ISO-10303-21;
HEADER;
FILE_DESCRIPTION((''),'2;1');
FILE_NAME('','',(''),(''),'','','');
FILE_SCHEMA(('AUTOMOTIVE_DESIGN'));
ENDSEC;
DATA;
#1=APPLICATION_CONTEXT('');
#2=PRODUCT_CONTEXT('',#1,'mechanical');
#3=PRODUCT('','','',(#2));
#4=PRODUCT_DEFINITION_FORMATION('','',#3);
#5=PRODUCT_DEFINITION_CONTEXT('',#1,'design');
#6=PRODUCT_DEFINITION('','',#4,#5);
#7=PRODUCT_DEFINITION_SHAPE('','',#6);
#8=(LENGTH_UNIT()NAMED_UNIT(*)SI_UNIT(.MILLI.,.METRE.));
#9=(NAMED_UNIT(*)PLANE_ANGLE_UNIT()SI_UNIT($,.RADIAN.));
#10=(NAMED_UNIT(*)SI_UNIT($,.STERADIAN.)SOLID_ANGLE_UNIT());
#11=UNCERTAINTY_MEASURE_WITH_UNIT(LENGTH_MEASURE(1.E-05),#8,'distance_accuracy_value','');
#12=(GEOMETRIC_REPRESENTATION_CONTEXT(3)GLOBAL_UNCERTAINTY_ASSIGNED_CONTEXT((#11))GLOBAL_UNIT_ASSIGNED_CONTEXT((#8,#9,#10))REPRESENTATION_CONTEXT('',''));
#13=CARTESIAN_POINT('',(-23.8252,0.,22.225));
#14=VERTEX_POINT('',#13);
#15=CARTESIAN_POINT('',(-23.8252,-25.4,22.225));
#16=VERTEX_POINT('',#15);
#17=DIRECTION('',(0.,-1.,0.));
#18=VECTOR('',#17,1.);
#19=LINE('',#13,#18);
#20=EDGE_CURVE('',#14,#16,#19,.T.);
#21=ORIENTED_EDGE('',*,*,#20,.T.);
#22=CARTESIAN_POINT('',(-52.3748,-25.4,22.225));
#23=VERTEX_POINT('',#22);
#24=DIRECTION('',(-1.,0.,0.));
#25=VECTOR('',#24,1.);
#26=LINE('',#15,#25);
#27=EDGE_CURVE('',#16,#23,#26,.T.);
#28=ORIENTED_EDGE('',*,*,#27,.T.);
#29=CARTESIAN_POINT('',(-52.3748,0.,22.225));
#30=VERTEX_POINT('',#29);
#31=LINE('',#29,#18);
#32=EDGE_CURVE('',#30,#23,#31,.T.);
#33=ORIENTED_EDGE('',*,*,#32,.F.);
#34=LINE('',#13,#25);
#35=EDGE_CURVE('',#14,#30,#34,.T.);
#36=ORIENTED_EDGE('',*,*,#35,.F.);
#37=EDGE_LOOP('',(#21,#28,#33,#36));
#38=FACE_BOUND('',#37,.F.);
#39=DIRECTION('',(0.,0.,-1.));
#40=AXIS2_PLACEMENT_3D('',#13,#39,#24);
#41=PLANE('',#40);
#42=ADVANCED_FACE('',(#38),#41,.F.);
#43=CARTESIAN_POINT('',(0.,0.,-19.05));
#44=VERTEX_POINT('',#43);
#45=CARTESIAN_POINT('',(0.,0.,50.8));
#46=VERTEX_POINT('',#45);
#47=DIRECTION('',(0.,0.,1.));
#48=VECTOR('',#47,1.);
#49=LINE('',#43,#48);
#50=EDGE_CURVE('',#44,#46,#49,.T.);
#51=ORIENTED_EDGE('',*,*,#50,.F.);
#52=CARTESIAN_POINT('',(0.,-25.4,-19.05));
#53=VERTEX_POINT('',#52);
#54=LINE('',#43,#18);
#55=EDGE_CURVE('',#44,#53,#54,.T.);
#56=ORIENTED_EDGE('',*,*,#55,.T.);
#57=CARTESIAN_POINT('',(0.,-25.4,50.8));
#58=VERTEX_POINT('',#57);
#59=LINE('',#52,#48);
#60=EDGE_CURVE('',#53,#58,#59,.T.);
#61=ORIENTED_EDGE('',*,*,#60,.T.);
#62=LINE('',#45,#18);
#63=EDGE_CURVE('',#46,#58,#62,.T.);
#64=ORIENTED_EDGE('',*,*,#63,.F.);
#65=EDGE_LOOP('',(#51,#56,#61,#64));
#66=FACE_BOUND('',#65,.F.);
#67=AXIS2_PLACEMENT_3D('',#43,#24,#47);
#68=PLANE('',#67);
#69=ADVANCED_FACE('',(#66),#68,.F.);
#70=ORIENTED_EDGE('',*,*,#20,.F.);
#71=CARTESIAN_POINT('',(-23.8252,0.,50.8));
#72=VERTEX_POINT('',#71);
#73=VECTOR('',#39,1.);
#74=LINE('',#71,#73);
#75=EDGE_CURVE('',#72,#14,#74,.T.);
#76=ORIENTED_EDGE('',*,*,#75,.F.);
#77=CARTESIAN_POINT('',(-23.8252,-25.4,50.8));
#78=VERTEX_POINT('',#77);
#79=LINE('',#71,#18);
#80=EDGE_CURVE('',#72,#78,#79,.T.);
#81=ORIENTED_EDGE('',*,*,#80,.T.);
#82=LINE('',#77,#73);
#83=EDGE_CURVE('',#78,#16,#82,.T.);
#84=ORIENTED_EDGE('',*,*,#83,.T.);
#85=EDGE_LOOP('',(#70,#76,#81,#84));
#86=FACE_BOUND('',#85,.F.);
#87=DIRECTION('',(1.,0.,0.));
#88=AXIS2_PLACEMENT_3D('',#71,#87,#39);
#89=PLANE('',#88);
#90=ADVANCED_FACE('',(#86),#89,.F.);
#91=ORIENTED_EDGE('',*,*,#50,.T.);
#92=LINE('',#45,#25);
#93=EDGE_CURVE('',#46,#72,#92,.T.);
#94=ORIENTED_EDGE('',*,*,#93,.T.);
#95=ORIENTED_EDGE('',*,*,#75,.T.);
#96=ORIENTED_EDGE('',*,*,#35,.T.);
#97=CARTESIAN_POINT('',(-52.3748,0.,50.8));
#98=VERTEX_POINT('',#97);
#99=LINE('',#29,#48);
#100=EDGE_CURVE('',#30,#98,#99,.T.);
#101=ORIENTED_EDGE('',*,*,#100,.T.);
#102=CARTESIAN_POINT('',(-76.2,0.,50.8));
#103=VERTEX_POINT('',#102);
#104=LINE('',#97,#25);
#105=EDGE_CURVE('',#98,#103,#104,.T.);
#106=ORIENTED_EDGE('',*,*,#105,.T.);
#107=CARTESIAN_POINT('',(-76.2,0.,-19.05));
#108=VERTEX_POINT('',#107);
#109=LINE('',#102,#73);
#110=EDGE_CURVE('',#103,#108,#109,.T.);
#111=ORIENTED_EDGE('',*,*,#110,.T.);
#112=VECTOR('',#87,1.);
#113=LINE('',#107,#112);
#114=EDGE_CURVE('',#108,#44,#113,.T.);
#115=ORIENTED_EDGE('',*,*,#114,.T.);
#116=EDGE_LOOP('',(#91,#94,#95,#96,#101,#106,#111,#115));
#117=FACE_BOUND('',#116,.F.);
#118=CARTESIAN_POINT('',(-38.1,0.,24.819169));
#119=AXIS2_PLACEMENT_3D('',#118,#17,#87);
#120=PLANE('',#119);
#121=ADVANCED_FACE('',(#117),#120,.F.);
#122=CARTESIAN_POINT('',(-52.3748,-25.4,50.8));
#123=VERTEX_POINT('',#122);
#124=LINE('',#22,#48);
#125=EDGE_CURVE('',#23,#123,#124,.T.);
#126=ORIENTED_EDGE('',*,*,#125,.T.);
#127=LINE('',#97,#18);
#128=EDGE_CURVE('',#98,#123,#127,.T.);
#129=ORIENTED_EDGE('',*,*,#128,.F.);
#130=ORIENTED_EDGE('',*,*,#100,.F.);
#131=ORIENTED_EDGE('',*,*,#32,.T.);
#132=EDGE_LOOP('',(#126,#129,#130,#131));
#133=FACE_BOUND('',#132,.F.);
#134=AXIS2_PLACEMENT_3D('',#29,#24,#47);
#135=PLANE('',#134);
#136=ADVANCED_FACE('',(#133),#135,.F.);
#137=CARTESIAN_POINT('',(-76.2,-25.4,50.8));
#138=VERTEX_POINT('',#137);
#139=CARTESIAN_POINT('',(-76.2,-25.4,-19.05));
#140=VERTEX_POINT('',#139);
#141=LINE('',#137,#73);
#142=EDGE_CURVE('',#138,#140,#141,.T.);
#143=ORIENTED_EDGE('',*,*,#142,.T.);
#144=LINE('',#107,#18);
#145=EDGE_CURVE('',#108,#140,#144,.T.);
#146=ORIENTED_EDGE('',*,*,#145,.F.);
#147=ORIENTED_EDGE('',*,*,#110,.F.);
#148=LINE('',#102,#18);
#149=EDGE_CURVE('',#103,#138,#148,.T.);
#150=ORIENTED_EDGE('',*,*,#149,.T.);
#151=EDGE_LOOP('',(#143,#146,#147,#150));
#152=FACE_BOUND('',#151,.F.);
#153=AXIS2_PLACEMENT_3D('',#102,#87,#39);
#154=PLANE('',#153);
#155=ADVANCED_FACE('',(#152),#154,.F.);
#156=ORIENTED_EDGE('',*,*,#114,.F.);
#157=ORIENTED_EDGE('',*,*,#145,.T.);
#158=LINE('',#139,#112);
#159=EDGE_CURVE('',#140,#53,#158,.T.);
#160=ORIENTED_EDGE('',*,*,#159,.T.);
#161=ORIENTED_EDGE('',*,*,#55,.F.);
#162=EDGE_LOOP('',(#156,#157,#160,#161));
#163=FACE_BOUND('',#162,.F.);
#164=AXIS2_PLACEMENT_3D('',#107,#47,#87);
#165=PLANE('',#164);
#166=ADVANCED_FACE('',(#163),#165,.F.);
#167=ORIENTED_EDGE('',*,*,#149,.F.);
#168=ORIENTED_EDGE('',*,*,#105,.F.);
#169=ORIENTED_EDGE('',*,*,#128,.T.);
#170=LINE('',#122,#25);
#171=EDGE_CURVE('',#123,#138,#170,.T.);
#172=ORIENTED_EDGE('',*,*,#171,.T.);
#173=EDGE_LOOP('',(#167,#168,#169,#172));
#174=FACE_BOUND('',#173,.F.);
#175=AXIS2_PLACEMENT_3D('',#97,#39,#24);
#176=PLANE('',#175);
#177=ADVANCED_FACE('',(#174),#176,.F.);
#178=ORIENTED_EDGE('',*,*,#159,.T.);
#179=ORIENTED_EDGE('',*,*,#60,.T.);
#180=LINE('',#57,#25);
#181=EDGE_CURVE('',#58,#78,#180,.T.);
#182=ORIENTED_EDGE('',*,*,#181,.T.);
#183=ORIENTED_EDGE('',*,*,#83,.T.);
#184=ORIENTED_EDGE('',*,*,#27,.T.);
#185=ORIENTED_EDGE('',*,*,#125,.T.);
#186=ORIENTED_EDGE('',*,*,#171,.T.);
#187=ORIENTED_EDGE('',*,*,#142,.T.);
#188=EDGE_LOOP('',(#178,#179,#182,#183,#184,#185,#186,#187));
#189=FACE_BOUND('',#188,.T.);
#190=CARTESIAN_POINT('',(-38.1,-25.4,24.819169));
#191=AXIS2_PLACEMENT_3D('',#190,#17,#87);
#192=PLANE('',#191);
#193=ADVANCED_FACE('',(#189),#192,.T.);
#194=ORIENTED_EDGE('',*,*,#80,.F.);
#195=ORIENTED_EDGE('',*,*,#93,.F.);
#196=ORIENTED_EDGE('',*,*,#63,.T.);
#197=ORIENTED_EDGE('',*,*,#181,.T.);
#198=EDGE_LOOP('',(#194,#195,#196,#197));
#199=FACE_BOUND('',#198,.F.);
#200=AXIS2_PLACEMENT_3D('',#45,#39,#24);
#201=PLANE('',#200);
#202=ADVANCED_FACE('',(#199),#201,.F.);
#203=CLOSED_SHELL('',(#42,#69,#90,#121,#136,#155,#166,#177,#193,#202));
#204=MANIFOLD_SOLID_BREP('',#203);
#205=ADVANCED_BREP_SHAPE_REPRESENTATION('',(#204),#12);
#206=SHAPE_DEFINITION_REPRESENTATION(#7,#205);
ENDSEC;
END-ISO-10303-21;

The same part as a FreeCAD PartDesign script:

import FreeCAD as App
import Part
import Sketcher

V = App.Vector
Q = App.Units.Quantity

doc = App.newDocument("Part")
body = doc.addObject("PartDesign::Body", "Body")

# Sketch on XZ plane
sketch1 = body.newObject("Sketcher::SketchObject", "Sketch")
sketch1.AttachmentSupport = (doc.getObject("XZ_Plane"), [""])
sketch1.MapMode = "FlatFace"
sketch1.addGeometry([
    Part.LineSegment(V(0, 51, 0), V(-24, 51, 0)),  # 0
    Part.LineSegment(V(-24, 51, 0), V(-24, 22, 0)),  # 1
    Part.LineSegment(V(-24, 22, 0), V(-52, 22, 0)),  # 2
    Part.LineSegment(V(-52, 22, 0), V(-52, 51, 0)),  # 3
    Part.LineSegment(V(-52, 51, 0), V(-76, 51, 0)),  # 4
    Part.LineSegment(V(-76, 51, 0), V(-76, -19, 0)),  # 5
    Part.LineSegment(V(-76, -19, 0), V(0, -19, 0)),  # 6
    Part.LineSegment(V(0, -19, 0), V(0, 51, 0)),  # 7
], False)
sketch1.addConstraint([
    Sketcher.Constraint("Coincident", 0, 2, 1, 1),
    Sketcher.Constraint("Coincident", 1, 2, 2, 1),
    Sketcher.Constraint("Coincident", 2, 2, 3, 1),
    Sketcher.Constraint("Coincident", 3, 2, 4, 1),
    Sketcher.Constraint("Coincident", 4, 2, 5, 1),
    Sketcher.Constraint("Coincident", 5, 2, 6, 1),
    Sketcher.Constraint("Coincident", 6, 2, 7, 1),
    Sketcher.Constraint("Coincident", 7, 2, 0, 1),
    Sketcher.Constraint("Horizontal", 0),
    Sketcher.Constraint("Vertical", 1),
    Sketcher.Constraint("Horizontal", 2),
    Sketcher.Constraint("Vertical", 3),
    Sketcher.Constraint("Horizontal", 4),
    Sketcher.Constraint("Vertical", 5),
    Sketcher.Constraint("Horizontal", 6),
    Sketcher.Constraint("Vertical", 7),
    Sketcher.Constraint("PointOnObject", 6, 2, -2),
    Sketcher.Constraint("Horizontal", 0, 2, 3, 2),
    Sketcher.Constraint("Equal", 0, 4),
    Sketcher.Constraint("DistanceX", 6, 1, 6, 2, Q("3 in")),
    Sketcher.Constraint("DistanceY", -1, 1, 0, 2, Q("2 in")),
    Sketcher.Constraint("DistanceY", 5, 2, 5, 1, Q("2.75 in")),
    Sketcher.Constraint("DistanceX", 0, 2, 0, 1, Q("0.938 in")),
    Sketcher.Constraint("DistanceY", 1, 2, 1, 1, Q("1.125 in")),
])
pad1 = body.newObject("PartDesign::Pad", "Pad")
pad1.Profile = sketch1
pad1.Length = Q("1 in")

doc.recompute()
